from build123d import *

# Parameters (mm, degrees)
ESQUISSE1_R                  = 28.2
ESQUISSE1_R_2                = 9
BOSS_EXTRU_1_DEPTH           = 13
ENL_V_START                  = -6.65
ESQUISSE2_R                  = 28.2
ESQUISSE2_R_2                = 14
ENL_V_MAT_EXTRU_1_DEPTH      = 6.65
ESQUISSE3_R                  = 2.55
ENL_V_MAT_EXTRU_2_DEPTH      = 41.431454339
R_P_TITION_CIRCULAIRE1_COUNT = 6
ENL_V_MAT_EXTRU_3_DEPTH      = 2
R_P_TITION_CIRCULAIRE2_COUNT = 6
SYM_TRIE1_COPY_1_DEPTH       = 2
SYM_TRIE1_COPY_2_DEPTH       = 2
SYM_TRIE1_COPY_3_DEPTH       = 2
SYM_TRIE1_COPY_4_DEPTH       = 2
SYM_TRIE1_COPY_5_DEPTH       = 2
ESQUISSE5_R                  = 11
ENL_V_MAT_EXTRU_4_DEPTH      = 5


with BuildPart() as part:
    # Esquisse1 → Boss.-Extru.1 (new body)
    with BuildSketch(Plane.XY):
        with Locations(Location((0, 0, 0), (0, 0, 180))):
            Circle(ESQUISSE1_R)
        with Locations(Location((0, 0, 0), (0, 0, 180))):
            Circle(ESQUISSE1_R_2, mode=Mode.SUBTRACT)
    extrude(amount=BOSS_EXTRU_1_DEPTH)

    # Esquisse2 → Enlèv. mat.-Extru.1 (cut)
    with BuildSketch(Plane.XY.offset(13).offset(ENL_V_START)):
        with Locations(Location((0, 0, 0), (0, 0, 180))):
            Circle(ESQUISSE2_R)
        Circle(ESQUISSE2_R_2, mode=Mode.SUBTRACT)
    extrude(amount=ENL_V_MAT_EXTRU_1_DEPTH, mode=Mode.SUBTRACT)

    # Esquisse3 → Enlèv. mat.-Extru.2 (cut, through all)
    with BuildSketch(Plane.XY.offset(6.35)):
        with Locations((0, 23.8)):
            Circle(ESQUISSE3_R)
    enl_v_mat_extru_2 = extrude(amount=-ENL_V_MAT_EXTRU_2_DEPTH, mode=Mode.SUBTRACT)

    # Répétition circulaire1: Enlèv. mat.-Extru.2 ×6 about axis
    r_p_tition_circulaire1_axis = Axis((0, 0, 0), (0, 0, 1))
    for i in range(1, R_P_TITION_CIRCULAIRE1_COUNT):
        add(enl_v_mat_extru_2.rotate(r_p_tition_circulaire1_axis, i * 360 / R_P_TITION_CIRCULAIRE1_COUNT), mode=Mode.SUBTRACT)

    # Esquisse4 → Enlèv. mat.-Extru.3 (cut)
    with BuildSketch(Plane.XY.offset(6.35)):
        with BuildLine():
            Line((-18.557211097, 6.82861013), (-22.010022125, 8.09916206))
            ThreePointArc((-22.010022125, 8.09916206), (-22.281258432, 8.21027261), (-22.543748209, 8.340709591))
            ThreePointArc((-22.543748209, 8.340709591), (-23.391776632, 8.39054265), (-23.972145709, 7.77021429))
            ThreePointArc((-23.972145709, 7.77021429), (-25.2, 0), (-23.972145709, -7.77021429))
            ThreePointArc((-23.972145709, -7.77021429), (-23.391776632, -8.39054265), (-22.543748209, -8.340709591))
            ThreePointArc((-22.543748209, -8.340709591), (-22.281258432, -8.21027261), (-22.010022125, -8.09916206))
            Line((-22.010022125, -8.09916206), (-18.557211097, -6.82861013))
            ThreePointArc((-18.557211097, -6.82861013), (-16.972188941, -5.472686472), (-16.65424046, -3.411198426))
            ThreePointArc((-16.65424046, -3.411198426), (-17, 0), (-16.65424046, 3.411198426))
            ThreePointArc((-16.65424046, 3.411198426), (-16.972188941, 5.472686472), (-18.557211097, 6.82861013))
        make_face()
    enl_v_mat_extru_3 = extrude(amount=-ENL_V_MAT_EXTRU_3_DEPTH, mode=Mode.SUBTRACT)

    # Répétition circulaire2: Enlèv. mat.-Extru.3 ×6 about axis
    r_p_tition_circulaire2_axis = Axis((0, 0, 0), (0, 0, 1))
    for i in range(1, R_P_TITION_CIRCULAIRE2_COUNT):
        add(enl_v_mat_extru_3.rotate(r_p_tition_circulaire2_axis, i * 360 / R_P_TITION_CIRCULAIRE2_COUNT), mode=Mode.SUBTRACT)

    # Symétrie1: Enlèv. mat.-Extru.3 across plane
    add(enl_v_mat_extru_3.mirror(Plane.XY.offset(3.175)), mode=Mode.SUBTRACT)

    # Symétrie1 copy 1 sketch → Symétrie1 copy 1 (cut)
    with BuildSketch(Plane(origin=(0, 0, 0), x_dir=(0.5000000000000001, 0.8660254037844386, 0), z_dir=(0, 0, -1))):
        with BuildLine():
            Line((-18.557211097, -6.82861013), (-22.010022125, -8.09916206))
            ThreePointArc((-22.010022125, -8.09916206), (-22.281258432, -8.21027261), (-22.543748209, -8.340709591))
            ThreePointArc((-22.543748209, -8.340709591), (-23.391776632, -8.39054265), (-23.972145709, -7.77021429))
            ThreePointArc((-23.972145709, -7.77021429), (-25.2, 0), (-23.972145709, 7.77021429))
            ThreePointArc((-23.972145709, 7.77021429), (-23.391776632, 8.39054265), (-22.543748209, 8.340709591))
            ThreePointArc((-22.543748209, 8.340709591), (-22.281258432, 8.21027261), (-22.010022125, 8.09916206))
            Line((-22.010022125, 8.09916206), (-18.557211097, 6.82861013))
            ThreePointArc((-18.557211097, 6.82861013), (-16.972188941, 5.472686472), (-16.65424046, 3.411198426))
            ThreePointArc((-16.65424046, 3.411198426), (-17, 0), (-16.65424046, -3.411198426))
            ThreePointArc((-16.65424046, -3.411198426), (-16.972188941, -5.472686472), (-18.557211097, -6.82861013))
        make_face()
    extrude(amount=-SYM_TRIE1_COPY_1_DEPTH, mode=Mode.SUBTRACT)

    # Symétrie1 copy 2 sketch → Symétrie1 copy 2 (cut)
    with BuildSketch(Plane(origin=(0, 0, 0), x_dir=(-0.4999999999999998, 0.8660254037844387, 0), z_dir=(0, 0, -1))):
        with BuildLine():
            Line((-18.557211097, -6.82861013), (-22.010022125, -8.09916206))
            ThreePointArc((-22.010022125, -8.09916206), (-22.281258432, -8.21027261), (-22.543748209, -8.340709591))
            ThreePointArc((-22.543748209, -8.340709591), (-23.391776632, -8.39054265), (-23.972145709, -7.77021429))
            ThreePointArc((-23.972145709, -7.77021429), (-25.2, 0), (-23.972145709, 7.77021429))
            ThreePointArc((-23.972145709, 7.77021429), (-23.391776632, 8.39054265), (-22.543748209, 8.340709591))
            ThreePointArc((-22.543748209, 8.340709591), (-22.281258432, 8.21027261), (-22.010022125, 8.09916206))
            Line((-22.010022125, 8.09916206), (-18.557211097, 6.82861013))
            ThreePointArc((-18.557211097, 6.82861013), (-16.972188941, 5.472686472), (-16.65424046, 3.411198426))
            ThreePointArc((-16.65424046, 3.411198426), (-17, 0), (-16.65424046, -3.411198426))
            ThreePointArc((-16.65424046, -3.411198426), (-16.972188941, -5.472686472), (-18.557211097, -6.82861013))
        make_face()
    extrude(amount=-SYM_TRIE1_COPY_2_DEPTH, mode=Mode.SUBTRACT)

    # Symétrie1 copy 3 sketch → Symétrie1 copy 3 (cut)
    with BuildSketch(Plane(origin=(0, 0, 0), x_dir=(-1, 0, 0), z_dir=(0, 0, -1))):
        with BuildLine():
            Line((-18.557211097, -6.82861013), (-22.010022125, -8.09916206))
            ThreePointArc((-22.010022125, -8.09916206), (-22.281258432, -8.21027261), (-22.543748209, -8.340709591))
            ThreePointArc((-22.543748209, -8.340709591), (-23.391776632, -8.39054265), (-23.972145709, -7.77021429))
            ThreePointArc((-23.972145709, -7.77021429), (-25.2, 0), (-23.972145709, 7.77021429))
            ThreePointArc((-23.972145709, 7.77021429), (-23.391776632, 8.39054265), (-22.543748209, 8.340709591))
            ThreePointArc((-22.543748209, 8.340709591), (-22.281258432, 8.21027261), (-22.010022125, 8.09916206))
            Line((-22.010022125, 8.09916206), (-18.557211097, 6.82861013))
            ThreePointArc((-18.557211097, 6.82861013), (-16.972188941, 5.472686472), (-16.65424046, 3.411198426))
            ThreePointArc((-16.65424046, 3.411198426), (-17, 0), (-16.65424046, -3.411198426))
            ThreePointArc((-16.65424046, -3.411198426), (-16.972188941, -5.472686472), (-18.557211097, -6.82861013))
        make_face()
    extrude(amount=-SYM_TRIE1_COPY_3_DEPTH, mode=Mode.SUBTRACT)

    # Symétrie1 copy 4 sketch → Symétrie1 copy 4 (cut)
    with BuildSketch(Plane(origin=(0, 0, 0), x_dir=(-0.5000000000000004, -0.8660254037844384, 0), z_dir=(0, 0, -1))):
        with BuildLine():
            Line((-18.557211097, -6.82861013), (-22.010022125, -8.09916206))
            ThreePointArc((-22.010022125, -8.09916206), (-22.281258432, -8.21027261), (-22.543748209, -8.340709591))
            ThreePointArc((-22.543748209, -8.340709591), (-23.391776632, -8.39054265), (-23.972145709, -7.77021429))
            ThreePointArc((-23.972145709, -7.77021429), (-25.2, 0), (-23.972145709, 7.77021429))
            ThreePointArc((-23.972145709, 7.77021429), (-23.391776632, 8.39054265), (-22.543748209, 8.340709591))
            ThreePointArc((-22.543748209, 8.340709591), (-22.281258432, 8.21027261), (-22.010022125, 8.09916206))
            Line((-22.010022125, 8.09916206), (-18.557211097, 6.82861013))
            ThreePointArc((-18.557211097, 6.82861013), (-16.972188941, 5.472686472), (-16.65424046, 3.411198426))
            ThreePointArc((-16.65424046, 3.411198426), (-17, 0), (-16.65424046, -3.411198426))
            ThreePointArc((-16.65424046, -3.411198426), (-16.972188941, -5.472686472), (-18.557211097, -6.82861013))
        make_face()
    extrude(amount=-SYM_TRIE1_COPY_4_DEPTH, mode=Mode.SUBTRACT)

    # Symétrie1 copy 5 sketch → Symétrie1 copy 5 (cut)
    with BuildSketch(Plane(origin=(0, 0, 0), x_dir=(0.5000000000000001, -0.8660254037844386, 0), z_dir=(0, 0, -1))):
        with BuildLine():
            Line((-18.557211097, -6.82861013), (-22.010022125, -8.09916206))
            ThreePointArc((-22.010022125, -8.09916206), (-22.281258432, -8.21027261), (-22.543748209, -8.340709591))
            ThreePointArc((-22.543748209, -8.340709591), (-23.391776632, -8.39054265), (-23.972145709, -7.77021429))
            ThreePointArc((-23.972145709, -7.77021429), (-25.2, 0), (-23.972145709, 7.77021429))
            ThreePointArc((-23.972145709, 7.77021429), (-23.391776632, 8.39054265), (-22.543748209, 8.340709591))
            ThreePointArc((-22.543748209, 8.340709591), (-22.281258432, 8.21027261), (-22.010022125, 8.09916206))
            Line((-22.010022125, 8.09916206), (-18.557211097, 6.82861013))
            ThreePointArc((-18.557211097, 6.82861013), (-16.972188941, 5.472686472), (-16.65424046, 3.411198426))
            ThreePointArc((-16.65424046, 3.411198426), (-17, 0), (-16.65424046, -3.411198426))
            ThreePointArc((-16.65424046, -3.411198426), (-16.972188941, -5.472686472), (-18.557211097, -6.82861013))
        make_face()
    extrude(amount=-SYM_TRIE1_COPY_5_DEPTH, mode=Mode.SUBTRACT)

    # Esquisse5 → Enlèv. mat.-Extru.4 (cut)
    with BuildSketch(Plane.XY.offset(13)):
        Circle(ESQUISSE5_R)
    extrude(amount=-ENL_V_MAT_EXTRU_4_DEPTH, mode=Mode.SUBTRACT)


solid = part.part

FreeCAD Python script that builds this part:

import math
import FreeCAD as App
import Part
import Sketcher

V = App.Vector

doc = App.newDocument("Part")
body = doc.addObject("PartDesign::Body", "Body")

# Sketch on XY plane
sketch1 = doc.addObject("Sketcher::SketchObject", "Sketch")
body.addObject(sketch1)
sketch1.AttachmentSupport = (doc.XY_Plane, [""])
sketch1.MapMode = "FlatFace"
sketch1.addGeometry([
    Part.Circle(V(0, 0, 0), V(0, 0, 1), 28),
    Part.Circle(V(0, 0, 0), V(0, 0, 1), 9),
], False)
sketch1.addConstraint([
    Sketcher.Constraint("Coincident", 0, 3, -1, 1),
    Sketcher.Constraint("Coincident", 1, 3, -1, 1),
    Sketcher.Constraint("Diameter", 1, 18.0),
    Sketcher.Constraint("Diameter", 0, 56.4),
])
pad1 = doc.addObject("PartDesign::Pad", "Pad")
body.addObject(pad1)
pad1.Profile = sketch1
pad1.Length = 13

# Sketch on XY plane
sketch2 = doc.addObject("Sketcher::SketchObject", "Sketch001")
body.addObject(sketch2)
sketch2.AttachmentSupport = (doc.XY_Plane, [""])
sketch2.MapMode = "FlatFace"
sketch2.AttachmentOffset = App.Placement(V(0, 0, 6.35), App.Rotation())
sketch2.addGeometry([
    Part.Circle(V(0, 0, 0), V(0, 0, 1), 28),
    Part.Circle(V(0, 0, 0), V(0, 0, 1), 14),
], False)
sketch2.addConstraint([
    Sketcher.Constraint("Coincident", 0, 3, -1, 1),
    Sketcher.Constraint("Coincident", 1, 3, -1, 1),
    Sketcher.Constraint("Diameter", 1, 28.0),
    Sketcher.Constraint("Diameter", 0, 56.4),
])
pocket1 = doc.addObject("PartDesign::Pocket", "Pocket")
body.addObject(pocket1)
pocket1.Profile = sketch2
pocket1.Length = 6.65
pocket1.Reversed = True

# Sketch on XY plane
sketch3 = doc.addObject("Sketcher::SketchObject", "Sketch002")
body.addObject(sketch3)
sketch3.AttachmentSupport = (doc.XY_Plane, [""])
sketch3.MapMode = "FlatFace"
sketch3.AttachmentOffset = App.Placement(V(0, 0, 6.35), App.Rotation())
sketch3.addGeometry(Part.Circle(V(0, 23.8, 0), V(0, 0, 1), 2.5), False)
sketch3.addConstraint([
    Sketcher.Constraint("PointOnObject", 0, 3, -2),
    Sketcher.Constraint("Diameter", 0, 5.1),
    Sketcher.Constraint("DistanceY", -1, 1, 0, 3, 23.8),
])
pocket2 = doc.addObject("PartDesign::Pocket", "Pocket001")
body.addObject(pocket2)
pocket2.Profile = sketch3
pocket2.Type = "ThroughAll"
doc.recompute()

polarpattern = doc.addObject("PartDesign::PolarPattern", "PolarPattern")
body.addObject(polarpattern)
polarpattern.Originals = [pocket2]
polarpattern.Axis = (doc.Z_Axis, [""])
polarpattern.Angle = 360
polarpattern.Occurrences = 6
body.Tip = polarpattern

# Sketch on XY plane
sketch4 = doc.addObject("Sketcher::SketchObject", "Sketch003")
body.addObject(sketch4)
sketch4.AttachmentSupport = (doc.XY_Plane, [""])
sketch4.MapMode = "FlatFace"
sketch4.AttachmentOffset = App.Placement(V(0, 0, 6.35), App.Rotation())
sketch4.addGeometry([
    Part.LineSegment(V(-18.6, 6.8, 0), V(-22, 8.1, 0)),  # 0
    Part.ArcOfCircle(Part.Circle(V(-20.6, 11.9, 0), V(0, 0, 1), 4.1), math.radians(-118.5), math.radians(-110.2)),  # 1
    Part.ArcOfCircle(Part.Circle(V(-23, 7.5, 0), V(0, 0, 1), 1), math.radians(62), math.radians(162)),  # 2
    Part.ArcOfCircle(Part.Circle(V(0, 0, 0), V(0, 0, 1), 25.2), math.radians(162), math.radians(198)),  # 3
    Part.ArcOfCircle(Part.Circle(V(-23, -7.5, 0), V(0, 0, 1), 1), math.radians(-162), math.radians(-62)),  # 4
    Part.ArcOfCircle(Part.Circle(V(-20.6, -11.9, 0), V(0, 0, 1), 4.1), math.radians(110.2), math.radians(118.5)),  # 5
    Part.LineSegment(V(-22, -8.1, 0), V(-18.6, -6.8, 0)),  # 6
    Part.ArcOfCircle(Part.Circle(V(-19.6, -4, 0), V(0, 0, 1), 3), math.radians(-70), math.radians(12)),  # 7
    Part.ArcOfCircle(Part.Circle(V(0, 0, 0), V(0, 0, 1), 17), math.radians(168), math.radians(192)),  # 8
    Part.ArcOfCircle(Part.Circle(V(-19.6, 4, 0), V(0, 0, 1), 3), math.radians(-12), math.radians(70)),  # 9
], False)
sketch4.addConstraint([
    Sketcher.Constraint("Tangent", 0, 2, 1, 2),
    Sketcher.Constraint("Tangent", 1, 1, 2, 1),
    Sketcher.Constraint("Tangent", 2, 2, 3, 1),
    Sketcher.Constraint("Tangent", 3, 2, 4, 1),
    Sketcher.Constraint("Tangent", 4, 2, 5, 2),
    Sketcher.Constraint("Tangent", 5, 1, 6, 1),
    Sketcher.Constraint("Tangent", 6, 2, 7, 1),
    Sketcher.Constraint("Tangent", 7, 2, 8, 2),
    Sketcher.Constraint("Tangent", 8, 1, 9, 1),
    Sketcher.Constraint("Tangent", 9, 2, 0, 1),
    Sketcher.Constraint("Coincident", 3, 3, -1, 1),
    Sketcher.Constraint("Coincident", 8, 3, -1, 1),
    Sketcher.Constraint("Equal", 2, 4),
    Sketcher.Constraint("Equal", 1, 5),
    Sketcher.Constraint("Equal", 7, 9),
    Sketcher.Constraint("Symmetric", 1, 3, 5, 3, -1),
    Sketcher.Constraint("Vertical", 7, 3, 9, 3),
    Sketcher.Constraint("Radius", 2, 1.0),
    Sketcher.Constraint("Radius", 7, 3.0),
    Sketcher.Constraint("Radius", 8, 17.0),
    Sketcher.Constraint("Radius", 3, 25.2),
    Sketcher.Constraint("Radius", 1, 4.05),
    Sketcher.Constraint("DistanceY", -1, 1, 1, 3, 11.9),
    Sketcher.Constraint("DistanceY", 7, 2, -1, 1, 3.411198),
    Sketcher.Constraint("DistanceX", 0, 2, 9, 3, 2.416798),
])
pocket3 = doc.addObject("PartDesign::Pocket", "Pocket002")
body.addObject(pocket3)
pocket3.Profile = sketch4
pocket3.Length = 2
doc.recompute()

polarpattern2 = doc.addObject("PartDesign::PolarPattern", "PolarPattern001")
body.addObject(polarpattern2)
polarpattern2.Originals = [pocket3]
polarpattern2.Axis = (doc.Z_Axis, [""])
polarpattern2.Angle = 360
polarpattern2.Occurrences = 6
body.Tip = polarpattern2
doc.recompute()

datumplane = doc.addObject("PartDesign::Plane", "DatumPlane")
body.addObject(datumplane)
datumplane.AttachmentSupport = (doc.XY_Plane, [""])
datumplane.MapMode = "FlatFace"
datumplane.AttachmentOffset = App.Placement(V(0, 0, 3.175), App.Rotation())
mirrored = doc.addObject("PartDesign::Mirrored", "Mirrored")
body.addObject(mirrored)
mirrored.Originals = [pocket3]
mirrored.MirrorPlane = (datumplane, [""])
body.Tip = mirrored

# Sketch on XY plane
sketch5 = doc.addObject("Sketcher::SketchObject", "Sketch004")
body.addObject(sketch5)
sketch5.AttachmentSupport = (doc.XY_Plane, [""])
sketch5.MapMode = "FlatFace"
sketch5.addGeometry([
    Part.LineSegment(V(-18, -15, 0), V(-15.2, -12.7, 0)),  # 0
    Part.ArcOfCircle(Part.Circle(V(-13.3, -15, 0), V(0, 0, 1), 3), math.radians(48), math.radians(130)),  # 1
    Part.ArcOfCircle(Part.Circle(V(0, 0, 0), V(0, 0, 1), 17), math.radians(-132), math.radians(-108)),  # 2
    Part.ArcOfCircle(Part.Circle(V(-6.3, -19, 0), V(0, 0, 1), 3), math.radians(-10), math.radians(72)),  # 3
    Part.LineSegment(V(-3.4, -19.5, 0), V(-4, -23.1, 0)),  # 4
    Part.ArcOfCircle(Part.Circle(V(0, -23.8, 0), V(0, 0, 1), 4.1), math.radians(170.2), math.radians(178.5)),  # 5
    Part.ArcOfCircle(Part.Circle(V(-5, -23.7, 0), V(0, 0, 1), 1), math.radians(-102), math.radians(-2)),  # 6
    Part.ArcOfCircle(Part.Circle(V(0, 0, 0), V(0, 0, 1), 25.2), math.radians(-138), math.radians(-102)),  # 7
    Part.ArcOfCircle(Part.Circle(V(-18, -16.2, 0), V(0, 0, 1), 1), math.radians(122), math.radians(222)),  # 8
    Part.ArcOfCircle(Part.Circle(V(-20.6, -11.9, 0), V(0, 0, 1), 4.1), math.radians(-58.5), math.radians(-50.2)),  # 9
], False)
sketch5.addConstraint([
    Sketcher.Constraint("Tangent", 0, 2, 1, 2),
    Sketcher.Constraint("Tangent", 1, 1, 2, 1),
    Sketcher.Constraint("Tangent", 2, 2, 3, 2),
    Sketcher.Constraint("Tangent", 3, 1, 4, 1),
    Sketcher.Constraint("Tangent", 4, 2, 5, 1),
    Sketcher.Constraint("Tangent", 5, 2, 6, 2),
    Sketcher.Constraint("Tangent", 6, 1, 7, 2),
    Sketcher.Constraint("Tangent", 7, 1, 8, 2),
    Sketcher.Constraint("Tangent", 8, 1, 9, 1),
    Sketcher.Constraint("Tangent", 9, 2, 0, 1),
    Sketcher.Constraint("Coincident", 2, 3, -1, 1),
    Sketcher.Constraint("Coincident", 7, 3, -1, 1),
    Sketcher.Constraint("Equal", 1, 3),
    Sketcher.Constraint("Equal", 6, 8),
    Sketcher.Constraint("Equal", 5, 9),
    Sketcher.Constraint("PointOnObject", 5, 3, -2),
    Sketcher.Constraint("Equal", 0, 4),
    Sketcher.Constraint("Radius", 1, 3.0),
    Sketcher.Constraint("Radius", 2, 17.0),
    Sketcher.Constraint("Radius", 6, 1.0),
    Sketcher.Constraint("Radius", 7, 25.2),
    Sketcher.Constraint("Radius", 5, 4.05),
    Sketcher.Constraint("DistanceY", 5, 3, -1, 1, 23.8),
    Sketcher.Constraint("DistanceY", 9, 3, -1, 1, 11.9),
    Sketcher.Constraint("DistanceY", 6, 3, 2, 2, 7.539),
    Sketcher.Constraint("DistanceX", 9, 3, 8, 3, 2.638798),
])
pocket4 = doc.addObject("PartDesign::Pocket", "Pocket003")
body.addObject(pocket4)
pocket4.Profile = sketch5
pocket4.Length = 2
pocket4.Reversed = True

# Sketch on XY plane
sketch6 = doc.addObject("Sketcher::SketchObject", "Sketch005")
body.addObject(sketch6)
sketch6.AttachmentSupport = (doc.XY_Plane, [""])
sketch6.MapMode = "FlatFace"
sketch6.addGeometry([
    Part.LineSegment(V(4, -23.1, 0), V(3.4, -19.5, 0)),  # 0
    Part.ArcOfCircle(Part.Circle(V(6.3, -19, 0), V(0, 0, 1), 3), math.radians(108), math.radians(190)),  # 1
    Part.ArcOfCircle(Part.Circle(V(0, 0, 0), V(0, 0, 1), 17), math.radians(-72), math.radians(-48)),  # 2
    Part.ArcOfCircle(Part.Circle(V(13.3, -15, 0), V(0, 0, 1), 3), math.radians(50), math.radians(132)),  # 3
    Part.LineSegment(V(15.2, -12.7, 0), V(18, -15, 0)),  # 4
    Part.ArcOfCircle(Part.Circle(V(20.6, -11.9, 0), V(0, 0, 1), 4.1), math.radians(-129.8), math.radians(-121.5)),  # 5
    Part.ArcOfCircle(Part.Circle(V(18, -16.2, 0), V(0, 0, 1), 1), math.radians(-42), math.radians(58)),  # 6
    Part.ArcOfCircle(Part.Circle(V(0, 0, 0), V(0, 0, 1), 25.2), math.radians(-78), math.radians(-42)),  # 7
    Part.ArcOfCircle(Part.Circle(V(5, -23.7, 0), V(0, 0, 1), 1), math.radians(-178), math.radians(-78)),  # 8
    Part.ArcOfCircle(Part.Circle(V(0, -23.8, 0), V(0, 0, 1), 4.1), math.radians(1.5), math.radians(9.8)),  # 9
], False)
sketch6.addConstraint([
    Sketcher.Constraint("Tangent", 0, 2, 1, 2),
    Sketcher.Constraint("Tangent", 1, 1, 2, 1),
    Sketcher.Constraint("Tangent", 2, 2, 3, 2),
    Sketcher.Constraint("Tangent", 3, 1, 4, 1),
    Sketcher.Constraint("Tangent", 4, 2, 5, 1),
    Sketcher.Constraint("Tangent", 5, 2, 6, 2),
    Sketcher.Constraint("Tangent", 6, 1, 7, 2),
    Sketcher.Constraint("Tangent", 7, 1, 8, 2),
    Sketcher.Constraint("Tangent", 8, 1, 9, 1),
    Sketcher.Constraint("Tangent", 9, 2, 0, 1),
    Sketcher.Constraint("Coincident", 2, 3, -1, 1),
    Sketcher.Constraint("Coincident", 7, 3, -1, 1),
    Sketcher.Constraint("Equal", 1, 3),
    Sketcher.Constraint("Equal", 6, 8),
    Sketcher.Constraint("Equal", 5, 9),
    Sketcher.Constraint("PointOnObject", 9, 3, -2),
    Sketcher.Constraint("Equal", 0, 4),
    Sketcher.Constraint("Radius", 1, 3.0),
    Sketcher.Constraint("Radius", 2, 17.0),
    Sketcher.Constraint("Radius", 6, 1.0),
    Sketcher.Constraint("Radius", 7, 25.2),
    Sketcher.Constraint("Radius", 5, 4.05),
    Sketcher.Constraint("DistanceY", 5, 3, -1, 1, 11.9),
    Sketcher.Constraint("DistanceY", 9, 3, -1, 1, 23.8),
    Sketcher.Constraint("DistanceY", 8, 3, 1, 1, 7.539),
    Sketcher.Constraint("DistanceX", 6, 3, 5, 3, 2.638798),
])
pocket5 = doc.addObject("PartDesign::Pocket", "Pocket004")
body.addObject(pocket5)
pocket5.Profile = sketch6
pocket5.Length = 2
pocket5.Reversed = True

# Sketch on XY plane
sketch7 = doc.addObject("Sketcher::SketchObject", "Sketch006")
body.addObject(sketch7)
sketch7.AttachmentSupport = (doc.XY_Plane, [""])
sketch7.MapMode = "FlatFace"
sketch7.addGeometry([
    Part.LineSegment(V(22, -8.1, 0), V(18.6, -6.8, 0)),  # 0
    Part.ArcOfCircle(Part.Circle(V(19.6, -4, 0), V(0, 0, 1), 3), math.radians(168), math.radians(250)),  # 1
    Part.ArcOfCircle(Part.Circle(V(0, 0, 0), V(0, 0, 1), 17), math.radians(-12), math.radians(12)),  # 2
    Part.ArcOfCircle(Part.Circle(V(19.6, 4, 0), V(0, 0, 1), 3), math.radians(110), math.radians(192)),  # 3
    Part.LineSegment(V(18.6, 6.8, 0), V(22, 8.1, 0)),  # 4
    Part.ArcOfCircle(Part.Circle(V(20.6, 11.9, 0), V(0, 0, 1), 4.1), math.radians(-69.8), math.radians(-61.5)),  # 5
    Part.ArcOfCircle(Part.Circle(V(23, 7.5, 0), V(0, 0, 1), 1), math.radians(18), math.radians(118)),  # 6
    Part.ArcOfCircle(Part.Circle(V(0, 0, 0), V(0, 0, 1), 25.2), math.radians(-18), math.radians(18)),  # 7
    Part.ArcOfCircle(Part.Circle(V(23, -7.5, 0), V(0, 0, 1), 1), math.radians(-118), math.radians(-18)),  # 8
    Part.ArcOfCircle(Part.Circle(V(20.6, -11.9, 0), V(0, 0, 1), 4.1), math.radians(61.5), math.radians(69.8)),  # 9
], False)
sketch7.addConstraint([
    Sketcher.Constraint("Tangent", 0, 2, 1, 2),
    Sketcher.Constraint("Tangent", 1, 1, 2, 1),
    Sketcher.Constraint("Tangent", 2, 2, 3, 2),
    Sketcher.Constraint("Tangent", 3, 1, 4, 1),
    Sketcher.Constraint("Tangent", 4, 2, 5, 1),
    Sketcher.Constraint("Tangent", 5, 2, 6, 2),
    Sketcher.Constraint("Tangent", 6, 1, 7, 2),
    Sketcher.Constraint("Tangent", 7, 1, 8, 2),
    Sketcher.Constraint("Tangent", 8, 1, 9, 1),
    Sketcher.Constraint("Tangent", 9, 2, 0, 1),
    Sketcher.Constraint("Coincident", 2, 3, -1, 1),
    Sketcher.Constraint("Coincident", 7, 3, -1, 1),
    Sketcher.Constraint("Equal", 1, 3),
    Sketcher.Constraint("Equal", 6, 8),
    Sketcher.Constraint("Equal", 5, 9),
    Sketcher.Constraint("Symmetric", 5, 3, 9, 3, -1),
    Sketcher.Constraint("Vertical", 1, 3, 3, 3),
    Sketcher.Constraint("Radius", 1, 3.0),
    Sketcher.Constraint("Radius", 2, 17.0),
    Sketcher.Constraint("Radius", 6, 1.0),
    Sketcher.Constraint("Radius", 7, 25.2),
    Sketcher.Constraint("Radius", 5, 4.05),
    Sketcher.Constraint("DistanceY", -1, 1, 5, 3, 11.9),
    Sketcher.Constraint("DistanceY", 1, 1, -1, 1, 3.411198),
    Sketcher.Constraint("DistanceX", 3, 3, 4, 2, 2.416798),
])
pocket6 = doc.addObject("PartDesign::Pocket", "Pocket005")
body.addObject(pocket6)
pocket6.Profile = sketch7
pocket6.Length = 2
pocket6.Reversed = True

# Sketch on XY plane
sketch8 = doc.addObject("Sketcher::SketchObject", "Sketch007")
body.addObject(sketch8)
sketch8.AttachmentSupport = (doc.XY_Plane, [""])
sketch8.MapMode = "FlatFace"
sketch8.addGeometry([
    Part.LineSegment(V(18, 15, 0), V(15.2, 12.7, 0)),  # 0
    Part.ArcOfCircle(Part.Circle(V(13.3, 15, 0), V(0, 0, 1), 3), math.radians(-132), math.radians(-50)),  # 1
    Part.ArcOfCircle(Part.Circle(V(0, 0, 0), V(0, 0, 1), 17), math.radians(48), math.radians(72)),  # 2
    Part.ArcOfCircle(Part.Circle(V(6.3, 19, 0), V(0, 0, 1), 3), math.radians(170), math.radians(252)),  # 3
    Part.LineSegment(V(3.4, 19.5, 0), V(4, 23.1, 0)),  # 4
    Part.ArcOfCircle(Part.Circle(V(0, 23.8, 0), V(0, 0, 1), 4.1), math.radians(-9.8), math.radians(-1.5)),  # 5
    Part.ArcOfCircle(Part.Circle(V(5, 23.7, 0), V(0, 0, 1), 1), math.radians(78), math.radians(178)),  # 6
    Part.ArcOfCircle(Part.Circle(V(0, 0, 0), V(0, 0, 1), 25.2), math.radians(42), math.radians(78)),  # 7
    Part.ArcOfCircle(Part.Circle(V(18, 16.2, 0), V(0, 0, 1), 1), math.radians(-58), math.radians(42)),  # 8
    Part.ArcOfCircle(Part.Circle(V(20.6, 11.9, 0), V(0, 0, 1), 4.1), math.radians(121.5), math.radians(129.8)),  # 9
], False)
sketch8.addConstraint([
    Sketcher.Constraint("Tangent", 0, 2, 1, 2),
    Sketcher.Constraint("Tangent", 1, 1, 2, 1),
    Sketcher.Constraint("Tangent", 2, 2, 3, 2),
    Sketcher.Constraint("Tangent", 3, 1, 4, 1),
    Sketcher.Constraint("Tangent", 4, 2, 5, 1),
    Sketcher.Constraint("Tangent", 5, 2, 6, 2),
    Sketcher.Constraint("Tangent", 6, 1, 7, 2),
    Sketcher.Constraint("Tangent", 7, 1, 8, 2),
    Sketcher.Constraint("Tangent", 8, 1, 9, 1),
    Sketcher.Constraint("Tangent", 9, 2, 0, 1),
    Sketcher.Constraint("Coincident", 2, 3, -1, 1),
    Sketcher.Constraint("Coincident", 7, 3, -1, 1),
    Sketcher.Constraint("Equal", 1, 3),
    Sketcher.Constraint("Equal", 6, 8),
    Sketcher.Constraint("Equal", 5, 9),
    Sketcher.Constraint("PointOnObject", 5, 3, -2),
    Sketcher.Constraint("Equal", 0, 4),
    Sketcher.Constraint("Radius", 1, 3.0),
    Sketcher.Constraint("Radius", 2, 17.0),
    Sketcher.Constraint("Radius", 6, 1.0),
    Sketcher.Constraint("Radius", 7, 25.2),
    Sketcher.Constraint("Radius", 5, 4.05),
    Sketcher.Constraint("DistanceY", -1, 1, 5, 3, 23.8),
    Sketcher.Constraint("DistanceY", -1, 1, 9, 3, 11.9),
    Sketcher.Constraint("DistanceY", 2, 2, 6, 3, 7.539),
    Sketcher.Constraint("DistanceX", 8, 3, 9, 3, 2.638798),
])
pocket7 = doc.addObject("PartDesign::Pocket", "Pocket006")
body.addObject(pocket7)
pocket7.Profile = sketch8
pocket7.Length = 2
pocket7.Reversed = True

# Sketch on XY plane
sketch9 = doc.addObject("Sketcher::SketchObject", "Sketch008")
body.addObject(sketch9)
sketch9.AttachmentSupport = (doc.XY_Plane, [""])
sketch9.MapMode = "FlatFace"
sketch9.addGeometry([
    Part.LineSegment(V(-4, 23.1, 0), V(-3.4, 19.5, 0)),  # 0
    Part.ArcOfCircle(Part.Circle(V(-6.3, 19, 0), V(0, 0, 1), 3), math.radians(-72), math.radians(10)),  # 1
    Part.ArcOfCircle(Part.Circle(V(0, 0, 0), V(0, 0, 1), 17), math.radians(108), math.radians(132)),  # 2
    Part.ArcOfCircle(Part.Circle(V(-13.3, 15, 0), V(0, 0, 1), 3), math.radians(-130), math.radians(-48)),  # 3
    Part.LineSegment(V(-15.2, 12.7, 0), V(-18, 15, 0)),  # 4
    Part.ArcOfCircle(Part.Circle(V(-20.6, 11.9, 0), V(0, 0, 1), 4.1), math.radians(50.2), math.radians(58.5)),  # 5
    Part.ArcOfCircle(Part.Circle(V(-18, 16.2, 0), V(0, 0, 1), 1), math.radians(138), math.radians(238)),  # 6
    Part.ArcOfCircle(Part.Circle(V(0, 0, 0), V(0, 0, 1), 25.2), math.radians(102), math.radians(138)),  # 7
    Part.ArcOfCircle(Part.Circle(V(-5, 23.7, 0), V(0, 0, 1), 1), math.radians(2), math.radians(102)),  # 8
    Part.ArcOfCircle(Part.Circle(V(0, 23.8, 0), V(0, 0, 1), 4.1), math.radians(-178.5), math.radians(-170.2)),  # 9
], False)
sketch9.addConstraint([
    Sketcher.Constraint("Tangent", 0, 2, 1, 2),
    Sketcher.Constraint("Tangent", 1, 1, 2, 1),
    Sketcher.Constraint("Tangent", 2, 2, 3, 2),
    Sketcher.Constraint("Tangent", 3, 1, 4, 1),
    Sketcher.Constraint("Tangent", 4, 2, 5, 1),
    Sketcher.Constraint("Tangent", 5, 2, 6, 2),
    Sketcher.Constraint("Tangent", 6, 1, 7, 2),
    Sketcher.Constraint("Tangent", 7, 1, 8, 2),
    Sketcher.Constraint("Tangent", 8, 1, 9, 1),
    Sketcher.Constraint("Tangent", 9, 2, 0, 1),
    Sketcher.Constraint("Coincident", 2, 3, -1, 1),
    Sketcher.Constraint("Coincident", 7, 3, -1, 1),
    Sketcher.Constraint("Equal", 1, 3),
    Sketcher.Constraint("Equal", 6, 8),
    Sketcher.Constraint("Equal", 5, 9),
    Sketcher.Constraint("PointOnObject", 9, 3, -2),
    Sketcher.Constraint("Equal", 0, 4),
    Sketcher.Constraint("Radius", 1, 3.0),
    Sketcher.Constraint("Radius", 2, 17.0),
    Sketcher.Constraint("Radius", 6, 1.0),
    Sketcher.Constraint("Radius", 7, 25.2),
    Sketcher.Constraint("Radius", 5, 4.05),
    Sketcher.Constraint("DistanceY", -1, 1, 5, 3, 11.9),
    Sketcher.Constraint("DistanceY", -1, 1, 9, 3, 23.8),
    Sketcher.Constraint("DistanceY", 1, 1, 8, 3, 7.539),
    Sketcher.Constraint("DistanceX", 5, 3, 6, 3, 2.638798),
])
pocket8 = doc.addObject("PartDesign::Pocket", "Pocket007")
body.addObject(pocket8)
pocket8.Profile = sketch9
pocket8.Length = 2
pocket8.Reversed = True

# Sketch on XY plane
sketch10 = doc.addObject("Sketcher::SketchObject", "Sketch009")
body.addObject(sketch10)
sketch10.AttachmentSupport = (doc.XY_Plane, [""])
sketch10.MapMode = "FlatFace"
sketch10.AttachmentOffset = App.Placement(V(0, 0, 13), App.Rotation())
sketch10.addGeometry(Part.Circle(V(0, 0, 0), V(0, 0, 1), 11), False)
sketch10.addConstraint([
    Sketcher.Constraint("Coincident", 0, 3, -1, 1),
    Sketcher.Constraint("Diameter", 0, 22.0),
])
pocket9 = doc.addObject("PartDesign::Pocket", "Pocket008")
body.addObject(pocket9)
pocket9.Profile = sketch10
pocket9.Length = 5

doc.recompute()
